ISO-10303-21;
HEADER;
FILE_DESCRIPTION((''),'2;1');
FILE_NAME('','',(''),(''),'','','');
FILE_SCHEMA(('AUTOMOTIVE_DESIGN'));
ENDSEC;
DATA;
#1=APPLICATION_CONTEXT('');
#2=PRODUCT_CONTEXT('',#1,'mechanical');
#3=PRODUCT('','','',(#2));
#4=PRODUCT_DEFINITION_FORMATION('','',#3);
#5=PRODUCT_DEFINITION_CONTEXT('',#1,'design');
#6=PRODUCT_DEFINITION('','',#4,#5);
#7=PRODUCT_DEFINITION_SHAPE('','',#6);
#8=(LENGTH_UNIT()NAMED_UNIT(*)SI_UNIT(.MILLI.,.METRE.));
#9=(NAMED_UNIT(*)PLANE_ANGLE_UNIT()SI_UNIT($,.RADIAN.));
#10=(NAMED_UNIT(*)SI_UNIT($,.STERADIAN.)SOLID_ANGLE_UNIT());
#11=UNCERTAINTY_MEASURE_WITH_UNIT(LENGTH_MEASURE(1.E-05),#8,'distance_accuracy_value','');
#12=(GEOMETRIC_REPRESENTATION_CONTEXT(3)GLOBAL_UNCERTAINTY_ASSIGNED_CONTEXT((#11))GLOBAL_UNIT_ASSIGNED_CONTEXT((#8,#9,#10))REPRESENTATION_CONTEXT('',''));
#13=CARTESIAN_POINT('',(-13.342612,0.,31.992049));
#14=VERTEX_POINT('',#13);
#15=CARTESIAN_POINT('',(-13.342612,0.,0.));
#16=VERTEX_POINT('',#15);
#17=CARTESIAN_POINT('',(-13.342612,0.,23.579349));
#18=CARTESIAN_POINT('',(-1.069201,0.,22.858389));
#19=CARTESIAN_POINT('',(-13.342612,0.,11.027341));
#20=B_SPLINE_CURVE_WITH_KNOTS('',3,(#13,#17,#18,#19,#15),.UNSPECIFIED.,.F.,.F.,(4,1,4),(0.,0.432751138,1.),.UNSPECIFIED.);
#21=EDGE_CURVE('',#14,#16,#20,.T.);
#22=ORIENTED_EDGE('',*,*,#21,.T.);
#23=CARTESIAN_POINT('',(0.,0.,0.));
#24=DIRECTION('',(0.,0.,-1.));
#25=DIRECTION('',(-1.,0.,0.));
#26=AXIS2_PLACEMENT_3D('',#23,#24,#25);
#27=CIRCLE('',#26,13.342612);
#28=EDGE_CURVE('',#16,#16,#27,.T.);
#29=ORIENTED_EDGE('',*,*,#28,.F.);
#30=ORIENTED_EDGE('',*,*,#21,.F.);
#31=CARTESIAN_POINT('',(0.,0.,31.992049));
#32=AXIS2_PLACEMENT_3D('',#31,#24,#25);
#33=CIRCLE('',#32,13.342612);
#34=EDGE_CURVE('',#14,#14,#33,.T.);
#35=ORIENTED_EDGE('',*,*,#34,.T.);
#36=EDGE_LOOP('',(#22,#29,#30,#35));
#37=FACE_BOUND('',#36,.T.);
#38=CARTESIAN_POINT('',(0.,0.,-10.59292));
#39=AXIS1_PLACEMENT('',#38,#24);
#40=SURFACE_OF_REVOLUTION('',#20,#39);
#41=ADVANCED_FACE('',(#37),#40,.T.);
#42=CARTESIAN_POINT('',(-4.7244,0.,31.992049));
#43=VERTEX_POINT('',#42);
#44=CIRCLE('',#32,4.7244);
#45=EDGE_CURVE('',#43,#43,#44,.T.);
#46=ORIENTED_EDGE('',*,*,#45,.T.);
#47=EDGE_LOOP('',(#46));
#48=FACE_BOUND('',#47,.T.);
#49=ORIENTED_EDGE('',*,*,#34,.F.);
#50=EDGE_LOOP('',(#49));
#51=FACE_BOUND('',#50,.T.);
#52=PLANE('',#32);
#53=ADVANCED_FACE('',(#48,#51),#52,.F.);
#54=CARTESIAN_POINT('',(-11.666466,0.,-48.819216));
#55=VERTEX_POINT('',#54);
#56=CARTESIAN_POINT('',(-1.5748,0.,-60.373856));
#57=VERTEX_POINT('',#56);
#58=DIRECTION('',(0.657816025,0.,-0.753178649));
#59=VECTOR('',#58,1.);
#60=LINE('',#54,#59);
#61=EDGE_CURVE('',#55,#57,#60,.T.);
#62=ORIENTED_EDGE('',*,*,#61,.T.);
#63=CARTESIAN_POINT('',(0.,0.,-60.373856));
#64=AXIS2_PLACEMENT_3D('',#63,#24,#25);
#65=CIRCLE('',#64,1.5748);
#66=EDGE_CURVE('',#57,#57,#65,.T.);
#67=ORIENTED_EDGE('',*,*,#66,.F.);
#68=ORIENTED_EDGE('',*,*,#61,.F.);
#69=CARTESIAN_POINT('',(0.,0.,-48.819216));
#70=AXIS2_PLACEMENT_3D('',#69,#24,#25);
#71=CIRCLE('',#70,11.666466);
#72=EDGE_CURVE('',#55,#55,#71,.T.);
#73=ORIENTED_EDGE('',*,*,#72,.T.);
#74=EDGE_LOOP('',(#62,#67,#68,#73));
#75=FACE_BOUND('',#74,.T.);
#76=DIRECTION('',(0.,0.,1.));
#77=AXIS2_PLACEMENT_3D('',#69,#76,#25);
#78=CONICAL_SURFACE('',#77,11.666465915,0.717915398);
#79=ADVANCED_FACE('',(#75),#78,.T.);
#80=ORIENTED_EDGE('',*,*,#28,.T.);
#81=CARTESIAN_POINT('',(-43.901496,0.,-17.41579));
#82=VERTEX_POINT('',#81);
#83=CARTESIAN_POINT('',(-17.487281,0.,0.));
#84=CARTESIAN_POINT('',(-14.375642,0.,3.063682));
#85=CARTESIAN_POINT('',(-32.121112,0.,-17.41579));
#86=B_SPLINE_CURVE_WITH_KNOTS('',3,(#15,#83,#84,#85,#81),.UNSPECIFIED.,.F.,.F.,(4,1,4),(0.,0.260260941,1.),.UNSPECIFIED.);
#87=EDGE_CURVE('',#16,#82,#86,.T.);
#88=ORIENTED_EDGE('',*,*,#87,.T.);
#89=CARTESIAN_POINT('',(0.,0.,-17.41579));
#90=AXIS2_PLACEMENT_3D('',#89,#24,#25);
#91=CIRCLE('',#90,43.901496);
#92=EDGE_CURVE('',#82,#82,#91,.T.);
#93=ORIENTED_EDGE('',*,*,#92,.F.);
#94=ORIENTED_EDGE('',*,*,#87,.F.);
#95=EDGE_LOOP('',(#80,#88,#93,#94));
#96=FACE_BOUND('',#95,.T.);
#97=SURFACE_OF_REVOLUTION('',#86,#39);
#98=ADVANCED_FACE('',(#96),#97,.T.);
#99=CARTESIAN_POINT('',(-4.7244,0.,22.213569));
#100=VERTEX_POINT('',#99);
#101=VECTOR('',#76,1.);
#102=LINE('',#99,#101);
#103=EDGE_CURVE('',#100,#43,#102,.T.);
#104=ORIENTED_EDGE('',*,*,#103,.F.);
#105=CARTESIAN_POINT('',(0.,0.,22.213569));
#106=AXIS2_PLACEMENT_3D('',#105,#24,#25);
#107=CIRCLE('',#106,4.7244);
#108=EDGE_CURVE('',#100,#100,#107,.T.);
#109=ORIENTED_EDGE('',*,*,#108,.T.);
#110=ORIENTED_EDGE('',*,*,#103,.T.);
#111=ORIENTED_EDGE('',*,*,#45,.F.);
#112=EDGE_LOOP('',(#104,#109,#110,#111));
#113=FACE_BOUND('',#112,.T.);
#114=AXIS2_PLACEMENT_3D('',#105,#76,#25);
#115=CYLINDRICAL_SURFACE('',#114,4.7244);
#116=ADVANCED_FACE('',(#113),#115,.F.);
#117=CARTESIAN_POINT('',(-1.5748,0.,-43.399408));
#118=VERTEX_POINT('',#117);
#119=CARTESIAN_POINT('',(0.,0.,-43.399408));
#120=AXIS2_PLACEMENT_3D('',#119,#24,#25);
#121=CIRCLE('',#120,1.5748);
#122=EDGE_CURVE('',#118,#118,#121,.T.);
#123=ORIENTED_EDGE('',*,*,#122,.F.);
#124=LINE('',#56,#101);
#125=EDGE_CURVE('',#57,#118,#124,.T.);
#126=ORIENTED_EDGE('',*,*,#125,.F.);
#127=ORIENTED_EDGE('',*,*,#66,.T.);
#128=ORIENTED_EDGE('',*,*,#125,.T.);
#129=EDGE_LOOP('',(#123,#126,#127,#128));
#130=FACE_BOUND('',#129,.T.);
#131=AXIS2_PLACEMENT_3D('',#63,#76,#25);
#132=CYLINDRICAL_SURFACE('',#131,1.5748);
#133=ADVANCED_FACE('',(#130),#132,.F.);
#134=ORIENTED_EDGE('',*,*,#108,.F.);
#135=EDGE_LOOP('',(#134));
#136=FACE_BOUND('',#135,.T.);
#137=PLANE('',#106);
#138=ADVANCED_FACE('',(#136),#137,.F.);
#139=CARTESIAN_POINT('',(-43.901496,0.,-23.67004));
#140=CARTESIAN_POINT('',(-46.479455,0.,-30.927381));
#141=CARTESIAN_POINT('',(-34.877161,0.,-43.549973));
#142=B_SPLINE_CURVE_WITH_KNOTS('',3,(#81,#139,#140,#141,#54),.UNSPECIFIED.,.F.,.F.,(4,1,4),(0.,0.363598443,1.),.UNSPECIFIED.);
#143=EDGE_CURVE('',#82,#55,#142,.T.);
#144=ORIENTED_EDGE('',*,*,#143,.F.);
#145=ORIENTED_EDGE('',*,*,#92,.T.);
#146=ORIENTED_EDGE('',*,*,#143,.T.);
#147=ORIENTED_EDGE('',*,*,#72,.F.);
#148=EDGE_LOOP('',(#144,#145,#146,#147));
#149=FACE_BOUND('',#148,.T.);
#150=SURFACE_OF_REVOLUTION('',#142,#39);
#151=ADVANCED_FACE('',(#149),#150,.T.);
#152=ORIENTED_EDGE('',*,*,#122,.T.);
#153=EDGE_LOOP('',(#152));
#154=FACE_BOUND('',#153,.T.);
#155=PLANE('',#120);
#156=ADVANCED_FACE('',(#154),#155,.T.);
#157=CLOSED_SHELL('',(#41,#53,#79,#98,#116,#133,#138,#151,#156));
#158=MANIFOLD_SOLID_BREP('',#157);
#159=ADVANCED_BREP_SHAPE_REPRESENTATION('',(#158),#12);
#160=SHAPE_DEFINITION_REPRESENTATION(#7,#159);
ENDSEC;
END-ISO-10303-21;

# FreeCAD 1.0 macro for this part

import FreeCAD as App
import Part
import Sketcher
Q = App.Units.Quantity

doc = App.newDocument("Part")
params = doc.addObject("Spreadsheet::Sheet", "Params")
for row, (alias, value) in enumerate([
    ("sketch1_width", "0.062 in"),
    ("sketch1_width2", "0.186 in"),
    ("revolution_angle", "360 deg"),
], start=1):
    params.set(f"A{row}", alias)
    params.set(f"B{row}", "=" + value)
    params.setAlias(f"B{row}", alias)

body = doc.addObject("PartDesign::Body", "Body")

# Sketch on XZ plane
sketch1 = body.newObject("Sketcher::SketchObject", "Sketch")
sketch1.AttachmentSupport = (doc.getObject("XZ_Plane"), [""])
sketch1.MapMode = "FlatFace"
sketch1.addGeometry(Part.LineSegment(App.Vector(-4.7244, 22.213569, 0), App.Vector(-4.7244, 31.992049, 0)), False)
sketch1.addGeometry(Part.LineSegment(App.Vector(-4.7244, 31.992049, 0), App.Vector(-13.342612, 31.992049, 0)), False)
sketch1.addGeometry(Part.BSplineCurve([App.Vector(-13.342612, 31.992049, 0), App.Vector(-13.342612, 23.579349, 0), App.Vector(-1.069201, 22.858389, 0), App.Vector(-13.342612, 11.027341, 0), App.Vector(-13.342612, 0, 0)], [4, 1, 4], [0, 0.432751138, 1], False, 3, [1, 1, 1, 1, 1], False), False)
sketch1.addGeometry(Part.BSplineCurve([App.Vector(-13.342612, 0, 0), App.Vector(-17.487281, 0, 0), App.Vector(-14.375642, 3.063682, 0), App.Vector(-32.121112, -17.41579, 0), App.Vector(-43.901496, -17.41579, 0)], [4, 1, 4], [0, 0.260260941, 1], False, 3, [1, 1, 1, 1, 1], False), False)
sketch1.addGeometry(Part.BSplineCurve([App.Vector(-43.901496, -17.41579, 0), App.Vector(-43.901496, -23.67004, 0), App.Vector(-46.479455, -30.927381, 0), App.Vector(-34.877161, -43.549973, 0), App.Vector(-11.666466, -48.819216, 0)], [4, 1, 4], [0, 0.363598443, 1], False, 3, [1, 1, 1, 1, 1], False), False)
sketch1.addGeometry(Part.LineSegment(App.Vector(-11.666466, -48.819216, 0), App.Vector(-1.5748, -60.373856, 0)), False)
sketch1.addGeometry(Part.LineSegment(App.Vector(-1.5748, -60.373856, 0), App.Vector(-1.5748, -43.399408, 0)), False)
sketch1.addGeometry(Part.LineSegment(App.Vector(-1.5748, -43.399408, 0), App.Vector(0, -43.399408, 0)), False)
sketch1.addGeometry(Part.LineSegment(App.Vector(0, -43.399408, 0), App.Vector(0, 22.213569, 0)), False)
sketch1.addGeometry(Part.LineSegment(App.Vector(0, 22.213569, 0), App.Vector(-4.7244, 22.213569, 0)), False)
sketch1.addConstraint(Sketcher.Constraint("Block", 2))
sketch1.addConstraint(Sketcher.Constraint("Block", 3))
sketch1.addConstraint(Sketcher.Constraint("Block", 4))
sketch1.addConstraint(Sketcher.Constraint("Coincident", 0, 2, 1, 1))
sketch1.addConstraint(Sketcher.Constraint("Coincident", 1, 2, 2, 1))
sketch1.addConstraint(Sketcher.Constraint("Coincident", 4, 2, 5, 1))
sketch1.addConstraint(Sketcher.Constraint("Coincident", 5, 2, 6, 1))
sketch1.addConstraint(Sketcher.Constraint("Coincident", 6, 2, 7, 1))
sketch1.addConstraint(Sketcher.Constraint("Coincident", 7, 2, 8, 1))
sketch1.addConstraint(Sketcher.Constraint("Coincident", 8, 2, 9, 1))
sketch1.addConstraint(Sketcher.Constraint("Coincident", 9, 2, 0, 1))
sketch1.addConstraint(Sketcher.Constraint("Vertical", 0))
sketch1.addConstraint(Sketcher.Constraint("Horizontal", 1))
sketch1.addConstraint(Sketcher.Constraint("Vertical", 6))
sketch1.addConstraint(Sketcher.Constraint("Horizontal", 7))
sketch1.addConstraint(Sketcher.Constraint("Vertical", 8))
sketch1.addConstraint(Sketcher.Constraint("Horizontal", 9))
sketch1.addConstraint(Sketcher.Constraint("PointOnObject", 7, 2, -2))
sketch1.addConstraint(Sketcher.Constraint("DistanceX", 7, 1, 7, 2, Q("0.062 in")))
sketch1.addConstraint(Sketcher.Constraint("DistanceX", 9, 2, 9, 1, Q("0.186 in")))
sketch1.addConstraint(Sketcher.Constraint("DistanceY", 0, 1, 0, 2, 9.77848))
sketch1.addConstraint(Sketcher.Constraint("DistanceY", 6, 1, 6, 2, 16.974448))
sketch1.addConstraint(Sketcher.Constraint("DistanceY", 8, 1, 8, 2, 65.612978))
sketch1.setExpression("Constraints[18]", "Params.sketch1_width")
sketch1.setExpression("Constraints[19]", "Params.sketch1_width2")
revolution = body.newObject("PartDesign::Revolution", "Revolution")
revolution.Profile = sketch1
revolution.ReferenceAxis = (sketch1, ["V_Axis"])
revolution.setExpression("Angle", "Params.revolution_angle")

doc.recompute()
